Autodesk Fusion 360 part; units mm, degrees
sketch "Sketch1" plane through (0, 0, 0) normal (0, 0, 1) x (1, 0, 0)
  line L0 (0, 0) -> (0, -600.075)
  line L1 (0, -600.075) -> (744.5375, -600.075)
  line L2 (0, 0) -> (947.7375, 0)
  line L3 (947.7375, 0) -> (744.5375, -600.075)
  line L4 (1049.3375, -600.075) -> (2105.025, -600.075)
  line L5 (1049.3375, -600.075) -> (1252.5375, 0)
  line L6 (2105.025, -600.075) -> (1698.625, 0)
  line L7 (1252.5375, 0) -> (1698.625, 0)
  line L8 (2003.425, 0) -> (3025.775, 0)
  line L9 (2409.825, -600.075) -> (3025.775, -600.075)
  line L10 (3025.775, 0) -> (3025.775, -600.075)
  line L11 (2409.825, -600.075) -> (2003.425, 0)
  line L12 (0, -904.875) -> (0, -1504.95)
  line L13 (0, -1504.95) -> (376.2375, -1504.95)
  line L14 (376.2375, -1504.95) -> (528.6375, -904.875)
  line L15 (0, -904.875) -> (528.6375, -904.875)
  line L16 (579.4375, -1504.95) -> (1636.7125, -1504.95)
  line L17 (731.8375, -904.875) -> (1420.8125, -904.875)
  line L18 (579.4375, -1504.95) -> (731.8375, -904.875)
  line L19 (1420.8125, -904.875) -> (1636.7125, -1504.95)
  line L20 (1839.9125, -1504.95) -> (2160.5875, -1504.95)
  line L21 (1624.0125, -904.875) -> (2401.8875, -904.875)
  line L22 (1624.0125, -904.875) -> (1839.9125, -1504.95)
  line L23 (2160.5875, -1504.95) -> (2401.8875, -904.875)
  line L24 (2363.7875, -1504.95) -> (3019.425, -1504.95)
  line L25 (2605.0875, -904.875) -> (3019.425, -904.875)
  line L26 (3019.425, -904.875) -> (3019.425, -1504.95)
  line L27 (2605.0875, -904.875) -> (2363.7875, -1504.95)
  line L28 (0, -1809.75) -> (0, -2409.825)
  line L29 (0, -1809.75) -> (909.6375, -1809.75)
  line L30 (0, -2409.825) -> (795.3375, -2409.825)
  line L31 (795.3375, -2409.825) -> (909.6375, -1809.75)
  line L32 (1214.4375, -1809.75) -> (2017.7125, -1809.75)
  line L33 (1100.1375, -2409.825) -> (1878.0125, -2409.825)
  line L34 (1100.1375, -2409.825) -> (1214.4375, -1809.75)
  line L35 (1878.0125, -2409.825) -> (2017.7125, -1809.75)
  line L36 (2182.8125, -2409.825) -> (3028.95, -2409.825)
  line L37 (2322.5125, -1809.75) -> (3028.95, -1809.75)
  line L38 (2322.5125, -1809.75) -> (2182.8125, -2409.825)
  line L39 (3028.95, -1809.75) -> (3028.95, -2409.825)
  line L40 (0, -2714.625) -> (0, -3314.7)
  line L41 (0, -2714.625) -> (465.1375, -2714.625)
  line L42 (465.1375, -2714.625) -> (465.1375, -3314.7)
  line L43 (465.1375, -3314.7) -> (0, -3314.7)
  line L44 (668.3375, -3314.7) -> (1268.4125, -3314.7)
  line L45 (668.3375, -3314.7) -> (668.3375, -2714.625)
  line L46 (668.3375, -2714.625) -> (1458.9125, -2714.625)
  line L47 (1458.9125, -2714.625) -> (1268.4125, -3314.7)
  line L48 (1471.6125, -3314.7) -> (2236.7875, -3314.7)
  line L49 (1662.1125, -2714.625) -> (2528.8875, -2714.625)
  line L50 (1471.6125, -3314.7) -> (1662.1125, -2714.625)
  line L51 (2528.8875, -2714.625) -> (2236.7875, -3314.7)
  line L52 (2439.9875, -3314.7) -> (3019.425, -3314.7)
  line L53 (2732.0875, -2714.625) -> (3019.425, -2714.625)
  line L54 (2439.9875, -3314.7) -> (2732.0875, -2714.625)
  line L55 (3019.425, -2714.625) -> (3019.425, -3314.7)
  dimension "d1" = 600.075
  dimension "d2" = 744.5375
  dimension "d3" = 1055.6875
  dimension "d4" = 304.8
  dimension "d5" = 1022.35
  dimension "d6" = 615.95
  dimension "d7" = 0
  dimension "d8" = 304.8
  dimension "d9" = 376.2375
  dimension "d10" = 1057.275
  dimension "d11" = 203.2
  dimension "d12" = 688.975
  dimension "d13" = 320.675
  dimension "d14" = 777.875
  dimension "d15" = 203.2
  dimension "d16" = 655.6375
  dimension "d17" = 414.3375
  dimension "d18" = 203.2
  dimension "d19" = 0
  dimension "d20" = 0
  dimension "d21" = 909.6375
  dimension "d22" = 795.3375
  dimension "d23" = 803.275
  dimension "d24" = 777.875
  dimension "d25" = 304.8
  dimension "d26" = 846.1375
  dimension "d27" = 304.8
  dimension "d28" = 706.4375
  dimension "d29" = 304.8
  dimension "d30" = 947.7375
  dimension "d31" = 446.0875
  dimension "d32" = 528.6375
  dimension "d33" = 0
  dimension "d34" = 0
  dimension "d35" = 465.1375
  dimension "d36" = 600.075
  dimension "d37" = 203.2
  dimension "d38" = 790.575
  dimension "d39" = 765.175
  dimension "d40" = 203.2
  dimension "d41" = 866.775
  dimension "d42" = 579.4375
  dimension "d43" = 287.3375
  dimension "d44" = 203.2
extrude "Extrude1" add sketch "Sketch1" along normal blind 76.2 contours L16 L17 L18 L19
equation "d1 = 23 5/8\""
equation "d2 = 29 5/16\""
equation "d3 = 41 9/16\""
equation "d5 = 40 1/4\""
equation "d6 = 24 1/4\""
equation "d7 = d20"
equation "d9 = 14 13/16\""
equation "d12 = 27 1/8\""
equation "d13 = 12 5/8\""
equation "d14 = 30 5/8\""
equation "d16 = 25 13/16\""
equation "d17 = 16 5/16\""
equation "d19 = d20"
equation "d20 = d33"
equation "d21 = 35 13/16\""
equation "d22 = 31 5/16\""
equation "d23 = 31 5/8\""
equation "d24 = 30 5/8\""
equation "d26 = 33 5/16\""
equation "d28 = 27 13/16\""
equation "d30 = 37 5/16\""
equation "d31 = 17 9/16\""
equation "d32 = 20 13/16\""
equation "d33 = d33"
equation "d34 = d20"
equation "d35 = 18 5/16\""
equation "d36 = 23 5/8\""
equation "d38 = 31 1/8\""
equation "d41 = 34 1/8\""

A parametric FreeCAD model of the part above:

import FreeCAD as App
import Part
import Sketcher
from FreeCAD import Vector
Q = App.Units.Quantity

doc = App.newDocument("Part")
body = doc.addObject("PartDesign::Body", "Body")

# Sketch on XY plane
sketch1 = body.newObject("Sketcher::SketchObject", "Sketch")
sketch1.AttachmentSupport = (doc.getObject("XY_Plane"), [""])
sketch1.MapMode = "FlatFace"
sketch1.addGeometry(Part.LineSegment(Vector(732, -905, 0), Vector(579, -1505, 0)), False)
sketch1.addGeometry(Part.LineSegment(Vector(579, -1505, 0), Vector(1637, -1505, 0)), False)
sketch1.addGeometry(Part.LineSegment(Vector(1637, -1505, 0), Vector(1421, -905, 0)), False)
sketch1.addGeometry(Part.LineSegment(Vector(1421, -905, 0), Vector(732, -905, 0)), False)
sketch1.addConstraint(Sketcher.Constraint("Coincident", 0, 2, 1, 1))
sketch1.addConstraint(Sketcher.Constraint("Coincident", 1, 2, 2, 1))
sketch1.addConstraint(Sketcher.Constraint("Coincident", 2, 2, 3, 1))
sketch1.addConstraint(Sketcher.Constraint("Coincident", 3, 2, 0, 1))
sketch1.addConstraint(Sketcher.Constraint("Horizontal", 1))
sketch1.addConstraint(Sketcher.Constraint("Horizontal", 3))
sketch1.addConstraint(Sketcher.Constraint("DistanceX", 1, 1, 1, 2, Q("41.625 in")))
sketch1.addConstraint(Sketcher.Constraint("DistanceX", 3, 2, 3, 1, Q("27.125 in")))
sketch1.addConstraint(Sketcher.Constraint("DistanceX", -1, 1, 0, 2, Q("22.8125 in")))
sketch1.addConstraint(Sketcher.Constraint("DistanceY", 1, 2, 2, 2, Q("23.625 in")))
sketch1.addConstraint(Sketcher.Constraint("DistanceX", 0, 2, 3, 2, Q("6 in")))
sketch1.addConstraint(Sketcher.Constraint("DistanceY", 0, 2, -1, 1, Q("59.25 in")))
pad1 = body.newObject("PartDesign::Pad", "Pad")
pad1.Profile = sketch1
pad1.Length = Q("3 in")

doc.recompute()
